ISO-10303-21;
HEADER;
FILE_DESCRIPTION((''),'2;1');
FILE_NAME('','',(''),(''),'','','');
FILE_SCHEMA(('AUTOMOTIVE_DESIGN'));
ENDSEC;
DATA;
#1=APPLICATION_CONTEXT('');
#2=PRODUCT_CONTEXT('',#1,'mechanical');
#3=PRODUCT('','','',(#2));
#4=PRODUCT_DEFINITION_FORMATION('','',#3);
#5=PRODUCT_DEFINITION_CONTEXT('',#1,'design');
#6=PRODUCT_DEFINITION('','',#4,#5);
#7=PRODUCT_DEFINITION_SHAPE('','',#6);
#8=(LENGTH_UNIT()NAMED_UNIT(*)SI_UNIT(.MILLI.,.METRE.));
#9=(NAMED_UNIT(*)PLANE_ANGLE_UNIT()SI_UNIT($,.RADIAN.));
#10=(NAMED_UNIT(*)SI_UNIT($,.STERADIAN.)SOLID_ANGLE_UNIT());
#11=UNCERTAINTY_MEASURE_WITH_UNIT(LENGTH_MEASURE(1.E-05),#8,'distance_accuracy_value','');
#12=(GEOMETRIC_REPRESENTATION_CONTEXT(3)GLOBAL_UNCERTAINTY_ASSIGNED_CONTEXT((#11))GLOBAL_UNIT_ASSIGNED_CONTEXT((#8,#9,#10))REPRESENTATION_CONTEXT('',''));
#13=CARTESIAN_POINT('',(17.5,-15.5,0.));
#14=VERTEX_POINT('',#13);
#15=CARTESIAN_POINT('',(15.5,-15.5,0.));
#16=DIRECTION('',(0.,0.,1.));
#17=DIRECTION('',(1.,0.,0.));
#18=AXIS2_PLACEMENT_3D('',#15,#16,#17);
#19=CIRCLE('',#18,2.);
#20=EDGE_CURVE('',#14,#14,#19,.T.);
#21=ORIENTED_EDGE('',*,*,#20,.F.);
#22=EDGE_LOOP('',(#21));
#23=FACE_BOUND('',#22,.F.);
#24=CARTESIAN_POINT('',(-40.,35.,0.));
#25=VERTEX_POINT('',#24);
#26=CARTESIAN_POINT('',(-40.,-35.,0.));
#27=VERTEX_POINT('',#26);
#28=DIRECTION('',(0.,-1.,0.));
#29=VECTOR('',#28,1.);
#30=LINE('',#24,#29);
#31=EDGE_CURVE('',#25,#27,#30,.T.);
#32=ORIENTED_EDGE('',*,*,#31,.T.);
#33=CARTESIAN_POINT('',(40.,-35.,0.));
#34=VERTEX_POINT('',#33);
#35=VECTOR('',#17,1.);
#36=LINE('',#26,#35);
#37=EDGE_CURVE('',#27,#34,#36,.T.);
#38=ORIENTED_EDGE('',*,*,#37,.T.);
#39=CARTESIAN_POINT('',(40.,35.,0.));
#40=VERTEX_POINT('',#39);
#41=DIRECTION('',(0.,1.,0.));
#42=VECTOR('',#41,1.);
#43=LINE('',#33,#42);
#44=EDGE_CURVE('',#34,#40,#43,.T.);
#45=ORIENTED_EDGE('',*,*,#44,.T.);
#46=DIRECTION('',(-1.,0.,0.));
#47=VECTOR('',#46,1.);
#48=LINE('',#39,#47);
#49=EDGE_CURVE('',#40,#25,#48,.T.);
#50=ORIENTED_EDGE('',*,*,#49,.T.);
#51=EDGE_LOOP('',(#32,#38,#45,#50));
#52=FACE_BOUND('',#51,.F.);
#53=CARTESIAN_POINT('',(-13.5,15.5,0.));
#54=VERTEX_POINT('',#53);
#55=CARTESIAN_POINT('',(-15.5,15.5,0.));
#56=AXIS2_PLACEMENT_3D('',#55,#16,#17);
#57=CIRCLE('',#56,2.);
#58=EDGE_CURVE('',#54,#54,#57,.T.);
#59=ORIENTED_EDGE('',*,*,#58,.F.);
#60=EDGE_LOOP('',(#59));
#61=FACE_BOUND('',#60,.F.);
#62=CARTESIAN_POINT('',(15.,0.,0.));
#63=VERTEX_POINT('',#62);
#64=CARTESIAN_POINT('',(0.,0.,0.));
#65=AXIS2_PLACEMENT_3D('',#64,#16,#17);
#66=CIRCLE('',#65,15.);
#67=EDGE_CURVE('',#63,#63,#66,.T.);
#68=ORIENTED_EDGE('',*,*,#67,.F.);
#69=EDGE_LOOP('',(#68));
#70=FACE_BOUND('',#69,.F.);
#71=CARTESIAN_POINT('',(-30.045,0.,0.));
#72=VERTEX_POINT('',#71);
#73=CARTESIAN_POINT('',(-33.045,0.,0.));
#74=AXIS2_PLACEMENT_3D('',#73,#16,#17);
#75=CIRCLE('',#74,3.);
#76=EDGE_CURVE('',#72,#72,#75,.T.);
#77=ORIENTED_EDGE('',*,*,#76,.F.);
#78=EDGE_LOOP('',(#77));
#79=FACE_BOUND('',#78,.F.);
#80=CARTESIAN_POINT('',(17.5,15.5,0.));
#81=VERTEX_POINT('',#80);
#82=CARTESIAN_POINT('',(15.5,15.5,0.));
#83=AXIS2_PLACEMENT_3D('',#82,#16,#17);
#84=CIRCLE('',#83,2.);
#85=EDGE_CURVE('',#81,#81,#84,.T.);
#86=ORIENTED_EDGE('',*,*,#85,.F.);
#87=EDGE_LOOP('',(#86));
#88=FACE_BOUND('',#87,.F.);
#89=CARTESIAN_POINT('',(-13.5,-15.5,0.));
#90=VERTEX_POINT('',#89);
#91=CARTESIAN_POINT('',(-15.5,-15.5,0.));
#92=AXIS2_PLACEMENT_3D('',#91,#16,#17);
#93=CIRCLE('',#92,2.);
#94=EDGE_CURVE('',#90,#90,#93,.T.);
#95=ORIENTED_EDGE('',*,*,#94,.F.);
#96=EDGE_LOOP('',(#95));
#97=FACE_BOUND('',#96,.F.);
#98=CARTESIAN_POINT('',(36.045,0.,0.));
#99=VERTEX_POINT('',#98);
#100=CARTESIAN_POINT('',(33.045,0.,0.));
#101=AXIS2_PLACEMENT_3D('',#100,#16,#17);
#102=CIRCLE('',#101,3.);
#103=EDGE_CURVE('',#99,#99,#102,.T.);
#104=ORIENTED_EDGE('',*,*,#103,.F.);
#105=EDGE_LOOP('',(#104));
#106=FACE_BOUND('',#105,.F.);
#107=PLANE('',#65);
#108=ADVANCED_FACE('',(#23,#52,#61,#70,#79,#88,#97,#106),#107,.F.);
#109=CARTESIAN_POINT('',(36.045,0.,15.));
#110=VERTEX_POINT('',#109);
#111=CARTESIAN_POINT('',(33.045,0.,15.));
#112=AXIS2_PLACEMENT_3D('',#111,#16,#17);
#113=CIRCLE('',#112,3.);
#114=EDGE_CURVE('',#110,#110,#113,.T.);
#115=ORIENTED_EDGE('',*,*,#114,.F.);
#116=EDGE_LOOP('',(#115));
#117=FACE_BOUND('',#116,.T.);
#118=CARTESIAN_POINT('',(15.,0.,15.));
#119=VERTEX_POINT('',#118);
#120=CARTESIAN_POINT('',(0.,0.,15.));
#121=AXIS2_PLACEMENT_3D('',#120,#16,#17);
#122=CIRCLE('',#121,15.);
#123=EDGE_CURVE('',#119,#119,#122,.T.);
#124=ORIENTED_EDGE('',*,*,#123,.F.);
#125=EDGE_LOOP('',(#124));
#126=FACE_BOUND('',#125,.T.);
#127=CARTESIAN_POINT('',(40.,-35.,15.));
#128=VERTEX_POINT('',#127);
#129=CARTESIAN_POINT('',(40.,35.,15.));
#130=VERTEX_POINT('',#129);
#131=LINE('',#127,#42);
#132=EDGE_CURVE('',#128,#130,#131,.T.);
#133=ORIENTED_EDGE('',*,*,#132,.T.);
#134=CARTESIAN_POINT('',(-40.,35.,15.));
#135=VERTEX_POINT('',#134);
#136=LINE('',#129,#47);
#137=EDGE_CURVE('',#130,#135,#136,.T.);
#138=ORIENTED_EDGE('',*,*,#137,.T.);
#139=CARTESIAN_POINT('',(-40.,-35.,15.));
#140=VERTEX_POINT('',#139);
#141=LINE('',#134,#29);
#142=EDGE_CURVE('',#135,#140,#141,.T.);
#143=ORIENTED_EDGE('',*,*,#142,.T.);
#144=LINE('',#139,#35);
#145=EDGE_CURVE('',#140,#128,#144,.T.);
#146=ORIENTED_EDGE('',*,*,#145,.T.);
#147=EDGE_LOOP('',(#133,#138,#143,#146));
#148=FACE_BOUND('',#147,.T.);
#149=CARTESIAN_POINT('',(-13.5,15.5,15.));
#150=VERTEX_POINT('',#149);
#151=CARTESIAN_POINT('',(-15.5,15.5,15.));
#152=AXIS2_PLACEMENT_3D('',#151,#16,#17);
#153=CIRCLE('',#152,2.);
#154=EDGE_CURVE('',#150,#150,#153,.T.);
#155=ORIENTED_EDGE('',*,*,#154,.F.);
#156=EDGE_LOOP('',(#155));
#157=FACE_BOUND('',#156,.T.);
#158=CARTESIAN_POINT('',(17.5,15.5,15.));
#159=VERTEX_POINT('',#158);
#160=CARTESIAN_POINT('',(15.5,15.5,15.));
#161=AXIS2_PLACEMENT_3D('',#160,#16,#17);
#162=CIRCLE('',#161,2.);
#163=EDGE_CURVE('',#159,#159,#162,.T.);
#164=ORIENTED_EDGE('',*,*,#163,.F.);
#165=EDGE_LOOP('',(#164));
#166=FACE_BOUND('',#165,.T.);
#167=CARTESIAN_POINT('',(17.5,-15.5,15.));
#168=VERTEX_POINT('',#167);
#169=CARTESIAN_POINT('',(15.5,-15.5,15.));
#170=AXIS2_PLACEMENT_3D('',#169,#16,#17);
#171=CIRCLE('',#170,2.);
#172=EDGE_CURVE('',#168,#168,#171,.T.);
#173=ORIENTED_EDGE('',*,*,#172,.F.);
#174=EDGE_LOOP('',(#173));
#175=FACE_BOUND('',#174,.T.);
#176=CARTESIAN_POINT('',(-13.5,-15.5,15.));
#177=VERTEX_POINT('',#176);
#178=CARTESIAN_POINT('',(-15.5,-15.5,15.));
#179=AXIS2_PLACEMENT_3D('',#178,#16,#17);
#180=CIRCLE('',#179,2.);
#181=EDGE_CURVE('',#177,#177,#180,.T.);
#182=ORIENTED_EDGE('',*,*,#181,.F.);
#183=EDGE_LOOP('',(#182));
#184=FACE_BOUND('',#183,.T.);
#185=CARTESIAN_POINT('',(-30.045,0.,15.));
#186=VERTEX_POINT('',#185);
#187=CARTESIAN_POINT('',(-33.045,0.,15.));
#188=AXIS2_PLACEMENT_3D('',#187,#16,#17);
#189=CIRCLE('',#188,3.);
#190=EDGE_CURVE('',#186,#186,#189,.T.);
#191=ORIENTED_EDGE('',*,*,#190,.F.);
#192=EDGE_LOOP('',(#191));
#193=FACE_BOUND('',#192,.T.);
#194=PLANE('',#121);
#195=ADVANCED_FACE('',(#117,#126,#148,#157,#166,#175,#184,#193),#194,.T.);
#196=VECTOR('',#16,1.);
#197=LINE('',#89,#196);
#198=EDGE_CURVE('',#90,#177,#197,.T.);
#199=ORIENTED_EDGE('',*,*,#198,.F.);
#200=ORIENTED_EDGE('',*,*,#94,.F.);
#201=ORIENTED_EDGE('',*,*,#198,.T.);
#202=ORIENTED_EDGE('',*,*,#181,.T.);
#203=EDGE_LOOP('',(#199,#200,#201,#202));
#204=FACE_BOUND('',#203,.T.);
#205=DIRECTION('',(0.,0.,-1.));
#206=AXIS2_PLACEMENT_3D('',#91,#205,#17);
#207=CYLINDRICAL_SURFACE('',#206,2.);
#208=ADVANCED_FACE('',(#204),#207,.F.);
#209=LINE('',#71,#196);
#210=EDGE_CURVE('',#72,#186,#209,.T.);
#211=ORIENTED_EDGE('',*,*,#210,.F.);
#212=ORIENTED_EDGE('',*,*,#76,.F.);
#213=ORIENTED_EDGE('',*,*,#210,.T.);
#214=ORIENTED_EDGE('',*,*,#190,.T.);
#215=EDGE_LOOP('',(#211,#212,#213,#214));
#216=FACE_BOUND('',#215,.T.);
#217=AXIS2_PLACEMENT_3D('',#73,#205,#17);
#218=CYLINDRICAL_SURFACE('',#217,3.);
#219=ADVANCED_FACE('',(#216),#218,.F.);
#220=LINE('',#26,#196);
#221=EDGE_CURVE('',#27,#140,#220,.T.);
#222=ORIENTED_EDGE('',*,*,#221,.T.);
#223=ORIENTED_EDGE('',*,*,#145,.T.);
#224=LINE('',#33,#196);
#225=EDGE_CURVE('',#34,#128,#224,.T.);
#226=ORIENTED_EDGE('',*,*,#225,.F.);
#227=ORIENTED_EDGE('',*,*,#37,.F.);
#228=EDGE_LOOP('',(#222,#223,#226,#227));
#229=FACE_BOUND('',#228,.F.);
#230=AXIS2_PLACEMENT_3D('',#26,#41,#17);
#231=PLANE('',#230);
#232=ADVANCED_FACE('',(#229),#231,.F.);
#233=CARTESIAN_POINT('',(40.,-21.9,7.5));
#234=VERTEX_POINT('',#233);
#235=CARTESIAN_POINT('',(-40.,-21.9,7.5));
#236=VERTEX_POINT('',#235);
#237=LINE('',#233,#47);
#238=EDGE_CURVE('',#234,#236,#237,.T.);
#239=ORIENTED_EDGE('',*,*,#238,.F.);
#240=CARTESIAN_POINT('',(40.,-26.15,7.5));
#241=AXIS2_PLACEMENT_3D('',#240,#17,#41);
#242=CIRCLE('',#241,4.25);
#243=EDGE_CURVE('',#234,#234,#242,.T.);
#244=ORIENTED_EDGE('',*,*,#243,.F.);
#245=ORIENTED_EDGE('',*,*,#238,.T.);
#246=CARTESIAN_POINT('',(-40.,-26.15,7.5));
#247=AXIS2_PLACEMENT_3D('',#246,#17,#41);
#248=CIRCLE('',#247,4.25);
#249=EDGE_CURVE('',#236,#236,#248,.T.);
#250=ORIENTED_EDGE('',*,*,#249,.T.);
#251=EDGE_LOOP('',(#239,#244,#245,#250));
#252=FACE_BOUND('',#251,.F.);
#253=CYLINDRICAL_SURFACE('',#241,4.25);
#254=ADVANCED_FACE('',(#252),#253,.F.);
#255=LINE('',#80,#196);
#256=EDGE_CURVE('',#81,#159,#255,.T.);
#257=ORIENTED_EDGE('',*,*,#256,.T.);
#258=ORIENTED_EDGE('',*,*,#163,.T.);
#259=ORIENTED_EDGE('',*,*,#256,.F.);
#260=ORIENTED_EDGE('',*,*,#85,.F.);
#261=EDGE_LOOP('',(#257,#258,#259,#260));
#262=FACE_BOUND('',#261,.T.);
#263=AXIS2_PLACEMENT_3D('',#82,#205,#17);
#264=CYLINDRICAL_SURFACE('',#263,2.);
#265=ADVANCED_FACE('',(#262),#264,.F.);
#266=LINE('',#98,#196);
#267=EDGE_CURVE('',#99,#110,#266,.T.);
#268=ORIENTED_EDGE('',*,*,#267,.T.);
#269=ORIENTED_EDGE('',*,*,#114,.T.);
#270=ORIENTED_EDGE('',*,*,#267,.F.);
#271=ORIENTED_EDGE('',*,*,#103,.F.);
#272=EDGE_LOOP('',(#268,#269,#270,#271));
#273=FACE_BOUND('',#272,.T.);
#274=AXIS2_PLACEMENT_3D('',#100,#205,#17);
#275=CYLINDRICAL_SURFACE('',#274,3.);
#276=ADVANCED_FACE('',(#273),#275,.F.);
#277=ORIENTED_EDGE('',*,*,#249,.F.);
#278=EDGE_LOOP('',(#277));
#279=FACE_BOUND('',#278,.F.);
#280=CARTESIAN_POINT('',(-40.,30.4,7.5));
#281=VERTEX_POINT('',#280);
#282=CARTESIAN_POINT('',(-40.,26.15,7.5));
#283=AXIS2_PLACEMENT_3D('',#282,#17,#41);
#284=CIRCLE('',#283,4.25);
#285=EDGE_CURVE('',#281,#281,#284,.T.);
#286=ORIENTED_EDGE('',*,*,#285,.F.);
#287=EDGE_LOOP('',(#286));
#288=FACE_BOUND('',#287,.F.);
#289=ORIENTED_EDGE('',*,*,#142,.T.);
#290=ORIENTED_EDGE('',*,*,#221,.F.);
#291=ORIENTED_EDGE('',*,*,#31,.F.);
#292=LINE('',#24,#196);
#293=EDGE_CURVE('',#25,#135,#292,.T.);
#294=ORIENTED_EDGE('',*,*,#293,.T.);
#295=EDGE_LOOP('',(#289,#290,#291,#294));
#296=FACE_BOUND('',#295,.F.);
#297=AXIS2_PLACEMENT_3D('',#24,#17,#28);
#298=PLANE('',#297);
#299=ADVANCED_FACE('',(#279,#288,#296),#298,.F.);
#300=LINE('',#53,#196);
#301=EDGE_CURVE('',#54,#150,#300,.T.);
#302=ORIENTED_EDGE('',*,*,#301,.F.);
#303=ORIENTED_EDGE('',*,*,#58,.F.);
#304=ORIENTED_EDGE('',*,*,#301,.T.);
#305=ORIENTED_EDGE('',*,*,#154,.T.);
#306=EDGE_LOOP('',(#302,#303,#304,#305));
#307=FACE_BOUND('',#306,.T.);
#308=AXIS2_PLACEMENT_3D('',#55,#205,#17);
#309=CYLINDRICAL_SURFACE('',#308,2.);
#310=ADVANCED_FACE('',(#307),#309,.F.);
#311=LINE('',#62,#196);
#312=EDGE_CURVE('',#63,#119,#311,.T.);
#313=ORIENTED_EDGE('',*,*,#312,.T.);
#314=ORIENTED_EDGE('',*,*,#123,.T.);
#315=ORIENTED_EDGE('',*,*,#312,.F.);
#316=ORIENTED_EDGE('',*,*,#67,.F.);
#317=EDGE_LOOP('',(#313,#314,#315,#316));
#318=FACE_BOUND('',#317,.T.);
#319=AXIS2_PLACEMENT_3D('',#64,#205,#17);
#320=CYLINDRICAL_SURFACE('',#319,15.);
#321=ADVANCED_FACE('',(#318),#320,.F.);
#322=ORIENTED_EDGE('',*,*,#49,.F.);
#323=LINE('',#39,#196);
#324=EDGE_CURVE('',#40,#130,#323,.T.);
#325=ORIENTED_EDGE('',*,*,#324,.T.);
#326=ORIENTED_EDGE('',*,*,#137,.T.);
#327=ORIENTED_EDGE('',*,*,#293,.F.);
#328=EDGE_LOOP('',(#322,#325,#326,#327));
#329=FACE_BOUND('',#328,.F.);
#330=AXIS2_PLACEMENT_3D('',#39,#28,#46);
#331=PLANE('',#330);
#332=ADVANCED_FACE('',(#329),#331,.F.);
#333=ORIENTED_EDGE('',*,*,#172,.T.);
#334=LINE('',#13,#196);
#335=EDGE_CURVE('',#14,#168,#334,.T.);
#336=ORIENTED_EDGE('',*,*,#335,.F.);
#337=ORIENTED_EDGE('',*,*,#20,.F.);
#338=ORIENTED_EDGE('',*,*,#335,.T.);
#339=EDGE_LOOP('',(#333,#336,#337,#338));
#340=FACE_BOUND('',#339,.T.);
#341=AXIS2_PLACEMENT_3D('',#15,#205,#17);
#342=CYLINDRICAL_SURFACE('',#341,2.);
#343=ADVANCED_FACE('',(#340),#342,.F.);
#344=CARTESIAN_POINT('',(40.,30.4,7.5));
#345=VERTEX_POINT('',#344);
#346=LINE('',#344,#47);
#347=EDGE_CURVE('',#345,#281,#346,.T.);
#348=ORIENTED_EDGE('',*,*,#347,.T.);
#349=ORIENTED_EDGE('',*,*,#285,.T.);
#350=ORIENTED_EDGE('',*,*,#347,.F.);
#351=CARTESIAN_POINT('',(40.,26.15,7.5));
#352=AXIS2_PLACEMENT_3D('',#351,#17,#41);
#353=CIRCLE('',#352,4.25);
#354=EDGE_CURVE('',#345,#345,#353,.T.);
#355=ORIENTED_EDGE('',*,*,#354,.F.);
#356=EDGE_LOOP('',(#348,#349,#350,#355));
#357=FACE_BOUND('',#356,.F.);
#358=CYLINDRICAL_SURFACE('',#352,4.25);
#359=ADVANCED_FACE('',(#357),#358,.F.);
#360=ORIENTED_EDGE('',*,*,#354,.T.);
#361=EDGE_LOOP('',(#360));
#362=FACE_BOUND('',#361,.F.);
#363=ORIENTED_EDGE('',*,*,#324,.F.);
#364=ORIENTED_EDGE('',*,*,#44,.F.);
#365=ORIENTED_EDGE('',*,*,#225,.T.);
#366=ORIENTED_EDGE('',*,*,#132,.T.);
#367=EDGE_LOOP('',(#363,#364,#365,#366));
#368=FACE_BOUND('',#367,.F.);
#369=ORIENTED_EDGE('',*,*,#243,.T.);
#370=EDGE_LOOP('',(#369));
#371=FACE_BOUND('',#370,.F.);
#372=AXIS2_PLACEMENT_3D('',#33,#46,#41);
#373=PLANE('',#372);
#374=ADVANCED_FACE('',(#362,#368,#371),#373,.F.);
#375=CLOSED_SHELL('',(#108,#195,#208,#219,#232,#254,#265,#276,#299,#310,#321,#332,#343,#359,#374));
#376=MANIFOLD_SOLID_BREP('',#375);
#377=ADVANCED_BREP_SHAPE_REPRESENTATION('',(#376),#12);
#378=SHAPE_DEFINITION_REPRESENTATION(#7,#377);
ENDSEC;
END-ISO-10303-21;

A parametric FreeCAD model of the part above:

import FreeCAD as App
import Part
import Sketcher

V = App.Vector


def add_polygon(sketch, points):
    """Adds a closed chain of lines whose ends are joined by coincident constraints."""
    first, n = sketch.GeometryCount, len(points)
    for a, b in zip(points, points[1:] + points[:1]):
        sketch.addGeometry(Part.LineSegment(App.Vector(*a, 0), App.Vector(*b, 0)), False)
    for i in range(n):
        sketch.addConstraint(Sketcher.Constraint("Coincident", first + i, 2, first + (i + 1) % n, 1))

doc = App.newDocument("Part")
params = doc.addObject("Spreadsheet::Sheet", "Params")
for row, (alias, value) in enumerate([
    ("sketch1_diameter", "4 mm"),
    ("sketch1_diameter2", "6 mm"),
    ("sketch1_diameter3", "30 mm"),
    ("sketch1_width", "80 mm"),
    ("sketch1_height", "70 mm"),
    ("pad1_length", "15 mm"),
    ("sketch2_diameter", "8.5 mm"),
], start=1):
    params.set(f"A{row}", alias)
    params.set(f"B{row}", "=" + value)
    params.setAlias(f"B{row}", alias)

body = doc.addObject("PartDesign::Body", "Body")

# Sketch on XY plane
sketch1 = body.newObject("Sketcher::SketchObject", "Sketch")
sketch1.AttachmentSupport = (doc.getObject("XY_Plane"), [""])
sketch1.MapMode = "FlatFace"
add_polygon(sketch1, [(40, -35), (40, 35), (-40, 35), (-40, -35)])  # lines 0-3
sketch1.addGeometry(Part.Circle(V(-15.5, -15.5, 0), V(0, 0, 1), 2), False)  # 4
sketch1.addGeometry(Part.Circle(V(15.5, -15.5, 0), V(0, 0, 1), 2), False)  # 5
sketch1.addGeometry(Part.Circle(V(-33.045, 0, 0), V(0, 0, 1), 3), False)  # 6
sketch1.addGeometry(Part.Circle(V(-15.5, 15.5, 0), V(0, 0, 1), 2), False)  # 7
sketch1.addGeometry(Part.Circle(V(0, 0, 0), V(0, 0, 1), 15), False)  # 8
sketch1.addGeometry(Part.Circle(V(33.045, 0, 0), V(0, 0, 1), 3), False)  # 9
sketch1.addGeometry(Part.Circle(V(15.5, 15.5, 0), V(0, 0, 1), 2), False)  # 10
sketch1.addConstraint(Sketcher.Constraint("Vertical", 0))
sketch1.addConstraint(Sketcher.Constraint("Horizontal", 1))
sketch1.addConstraint(Sketcher.Constraint("Vertical", 2))
sketch1.addConstraint(Sketcher.Constraint("Horizontal", 3))
sketch1.addConstraint(Sketcher.Constraint("Coincident", 8, 3, -1, 1))
sketch1.addConstraint(Sketcher.Constraint("Equal", 4, 5))
sketch1.addConstraint(Sketcher.Constraint("Equal", 5, 7))
sketch1.addConstraint(Sketcher.Constraint("Equal", 6, 9))
sketch1.addConstraint(Sketcher.Constraint("Equal", 7, 10))
sketch1.addConstraint(Sketcher.Constraint("Symmetric", 5, 3, 7, 3, -1, 1))
sketch1.addConstraint(Sketcher.Constraint("Symmetric", 6, 3, 9, 3, -1, 1))
sketch1.addConstraint(Sketcher.Constraint("Symmetric", 4, 3, 10, 3, -1, 1))
sketch1.addConstraint(Sketcher.Constraint("Symmetric", 0, 2, 2, 2, -1, 1))
sketch1.addConstraint(Sketcher.Constraint("Symmetric", 4, 3, 5, 3, -2))
sketch1.addConstraint(Sketcher.Constraint("PointOnObject", 6, 3, -1))
sketch1.addConstraint(Sketcher.Constraint("Diameter", 4, 4.0))
sketch1.addConstraint(Sketcher.Constraint("Diameter", 6, 6.0))
sketch1.addConstraint(Sketcher.Constraint("Diameter", 8, 30.0))
sketch1.addConstraint(Sketcher.Constraint("DistanceX", 1, 2, 1, 1, 80.0))
sketch1.addConstraint(Sketcher.Constraint("DistanceY", 0, 1, 0, 2, 70.0))
sketch1.addConstraint(Sketcher.Constraint("DistanceX", 4, 3, 5, 3, 31.0))
sketch1.addConstraint(Sketcher.Constraint("DistanceY", 4, 3, 7, 3, 31.0))
sketch1.addConstraint(Sketcher.Constraint("DistanceX", 6, 3, 9, 3, 66.09))
sketch1.setExpression("Constraints[19]", "Params.sketch1_diameter")
sketch1.setExpression("Constraints[20]", "Params.sketch1_diameter2")
sketch1.setExpression("Constraints[21]", "Params.sketch1_diameter3")
sketch1.setExpression("Constraints[22]", "Params.sketch1_width")
sketch1.setExpression("Constraints[23]", "Params.sketch1_height")
pad1 = body.newObject("PartDesign::Pad", "Pad")
pad1.Profile = sketch1
pad1.setExpression("Length", "Params.pad1_length")

# Sketch on YZ plane
sketch2 = body.newObject("Sketcher::SketchObject", "Sketch001")
sketch2.AttachmentSupport = (doc.getObject("YZ_Plane"), [""])
sketch2.MapMode = "FlatFace"
sketch2.AttachmentOffset = App.Placement(V(0, 0, 40), App.Rotation())
sketch2.addGeometry(Part.Circle(V(-26.15, 7.5, 0), V(0, 0, 1), 4.25), False)
sketch2.addGeometry(Part.Circle(V(26.15, 7.5, 0), V(0, 0, 1), 4.25), False)
sketch2.addConstraint(Sketcher.Constraint("Equal", 0, 1))
sketch2.addConstraint(Sketcher.Constraint("Symmetric", 0, 3, 1, 3, -2))
sketch2.addConstraint(Sketcher.Constraint("Diameter", 0, 8.5))
sketch2.addConstraint(Sketcher.Constraint("DistanceY", -1, 1, 0, 3, 7.5))
sketch2.addConstraint(Sketcher.Constraint("DistanceX", 0, 3, 1, 3, 52.3))
sketch2.setExpression("Constraints[2]", "Params.sketch2_diameter")
pocket1 = body.newObject("PartDesign::Pocket", "Pocket")
pocket1.Profile = sketch2
pocket1.Type = "ThroughAll"

doc.recompute()
